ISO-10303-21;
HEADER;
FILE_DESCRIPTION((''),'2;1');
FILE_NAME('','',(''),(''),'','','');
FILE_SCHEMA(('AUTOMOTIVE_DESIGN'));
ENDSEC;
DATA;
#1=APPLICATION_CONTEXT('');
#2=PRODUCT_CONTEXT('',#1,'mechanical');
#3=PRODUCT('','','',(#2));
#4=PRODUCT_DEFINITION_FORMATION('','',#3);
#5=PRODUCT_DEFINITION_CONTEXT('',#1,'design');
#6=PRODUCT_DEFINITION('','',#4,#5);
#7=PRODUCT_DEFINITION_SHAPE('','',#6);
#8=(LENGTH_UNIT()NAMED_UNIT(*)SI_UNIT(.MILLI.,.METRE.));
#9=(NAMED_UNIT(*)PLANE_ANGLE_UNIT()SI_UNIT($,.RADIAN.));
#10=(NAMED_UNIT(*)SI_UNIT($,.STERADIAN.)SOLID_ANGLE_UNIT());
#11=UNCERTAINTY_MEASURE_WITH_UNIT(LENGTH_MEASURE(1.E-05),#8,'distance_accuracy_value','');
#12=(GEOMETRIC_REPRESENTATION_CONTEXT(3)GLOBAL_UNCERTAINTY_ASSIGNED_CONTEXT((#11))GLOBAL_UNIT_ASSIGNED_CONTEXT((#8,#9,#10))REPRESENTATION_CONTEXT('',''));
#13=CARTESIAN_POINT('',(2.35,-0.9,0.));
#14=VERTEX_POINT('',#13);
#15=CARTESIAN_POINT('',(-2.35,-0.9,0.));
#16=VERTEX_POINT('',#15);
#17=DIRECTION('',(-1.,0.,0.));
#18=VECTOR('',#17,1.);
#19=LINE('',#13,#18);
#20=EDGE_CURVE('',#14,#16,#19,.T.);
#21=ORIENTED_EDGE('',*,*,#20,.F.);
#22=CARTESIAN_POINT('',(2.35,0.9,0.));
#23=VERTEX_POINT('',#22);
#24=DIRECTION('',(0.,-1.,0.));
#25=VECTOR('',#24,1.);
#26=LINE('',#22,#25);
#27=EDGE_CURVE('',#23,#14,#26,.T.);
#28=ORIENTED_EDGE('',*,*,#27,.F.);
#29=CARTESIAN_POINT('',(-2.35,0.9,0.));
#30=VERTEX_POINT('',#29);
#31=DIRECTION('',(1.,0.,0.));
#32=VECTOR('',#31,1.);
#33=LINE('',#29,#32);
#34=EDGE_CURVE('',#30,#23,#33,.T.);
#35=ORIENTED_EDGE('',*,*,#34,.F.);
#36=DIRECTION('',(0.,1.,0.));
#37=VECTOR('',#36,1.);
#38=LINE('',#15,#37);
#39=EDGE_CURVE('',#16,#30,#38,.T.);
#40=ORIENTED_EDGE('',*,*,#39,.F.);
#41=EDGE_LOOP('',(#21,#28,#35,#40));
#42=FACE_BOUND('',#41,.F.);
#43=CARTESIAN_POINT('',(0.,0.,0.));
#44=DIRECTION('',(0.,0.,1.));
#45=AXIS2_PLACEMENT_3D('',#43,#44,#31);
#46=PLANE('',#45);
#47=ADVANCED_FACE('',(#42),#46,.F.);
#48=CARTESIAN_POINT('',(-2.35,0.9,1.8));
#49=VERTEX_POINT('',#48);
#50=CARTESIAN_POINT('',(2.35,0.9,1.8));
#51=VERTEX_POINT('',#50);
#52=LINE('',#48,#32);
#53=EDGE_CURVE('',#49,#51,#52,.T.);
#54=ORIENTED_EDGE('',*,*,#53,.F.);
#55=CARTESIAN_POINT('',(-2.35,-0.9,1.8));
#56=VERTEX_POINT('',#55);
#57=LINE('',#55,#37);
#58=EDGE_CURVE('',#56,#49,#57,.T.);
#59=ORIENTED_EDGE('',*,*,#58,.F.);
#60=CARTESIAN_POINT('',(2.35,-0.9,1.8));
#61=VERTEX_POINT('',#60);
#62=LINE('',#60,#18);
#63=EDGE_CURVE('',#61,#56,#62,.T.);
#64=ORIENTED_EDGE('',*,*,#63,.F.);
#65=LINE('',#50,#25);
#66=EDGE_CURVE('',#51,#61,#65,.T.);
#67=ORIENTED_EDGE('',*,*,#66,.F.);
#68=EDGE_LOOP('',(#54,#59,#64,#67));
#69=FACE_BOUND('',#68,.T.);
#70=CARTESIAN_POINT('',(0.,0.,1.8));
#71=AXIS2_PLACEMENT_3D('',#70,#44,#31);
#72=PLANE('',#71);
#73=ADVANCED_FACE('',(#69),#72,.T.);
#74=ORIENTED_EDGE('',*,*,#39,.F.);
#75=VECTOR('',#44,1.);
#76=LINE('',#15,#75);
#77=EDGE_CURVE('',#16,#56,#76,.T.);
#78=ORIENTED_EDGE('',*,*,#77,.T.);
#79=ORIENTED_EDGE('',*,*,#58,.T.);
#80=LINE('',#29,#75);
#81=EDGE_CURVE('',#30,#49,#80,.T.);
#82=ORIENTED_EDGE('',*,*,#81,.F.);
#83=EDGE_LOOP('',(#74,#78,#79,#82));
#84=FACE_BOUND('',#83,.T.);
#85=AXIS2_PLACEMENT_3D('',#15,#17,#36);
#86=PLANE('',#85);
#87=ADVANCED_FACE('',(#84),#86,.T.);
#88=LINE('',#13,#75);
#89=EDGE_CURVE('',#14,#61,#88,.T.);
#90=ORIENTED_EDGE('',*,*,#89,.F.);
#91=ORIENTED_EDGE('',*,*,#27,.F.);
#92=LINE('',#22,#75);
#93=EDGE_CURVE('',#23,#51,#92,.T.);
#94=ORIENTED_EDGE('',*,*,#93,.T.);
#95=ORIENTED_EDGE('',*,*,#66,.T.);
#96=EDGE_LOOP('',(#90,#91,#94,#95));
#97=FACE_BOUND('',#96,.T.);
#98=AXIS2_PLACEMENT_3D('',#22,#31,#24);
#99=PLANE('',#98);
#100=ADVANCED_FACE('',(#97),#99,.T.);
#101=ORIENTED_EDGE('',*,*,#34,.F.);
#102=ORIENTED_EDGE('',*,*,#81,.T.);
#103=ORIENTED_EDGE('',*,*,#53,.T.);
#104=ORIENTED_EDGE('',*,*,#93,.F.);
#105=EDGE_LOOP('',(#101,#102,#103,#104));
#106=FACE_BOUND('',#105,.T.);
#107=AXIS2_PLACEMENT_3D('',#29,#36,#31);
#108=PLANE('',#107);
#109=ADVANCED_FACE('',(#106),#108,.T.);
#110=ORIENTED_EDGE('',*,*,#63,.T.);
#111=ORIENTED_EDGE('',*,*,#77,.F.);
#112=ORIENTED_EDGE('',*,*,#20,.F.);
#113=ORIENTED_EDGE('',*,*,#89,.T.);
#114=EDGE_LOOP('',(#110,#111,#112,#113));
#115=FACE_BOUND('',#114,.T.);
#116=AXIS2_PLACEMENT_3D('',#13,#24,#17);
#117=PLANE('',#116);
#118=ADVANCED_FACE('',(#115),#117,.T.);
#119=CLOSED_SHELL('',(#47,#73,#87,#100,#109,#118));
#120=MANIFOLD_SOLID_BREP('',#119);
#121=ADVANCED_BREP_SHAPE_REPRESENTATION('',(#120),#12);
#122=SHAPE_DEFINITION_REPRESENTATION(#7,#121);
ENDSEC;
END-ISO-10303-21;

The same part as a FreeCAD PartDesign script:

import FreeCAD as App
import Part
import Sketcher
from FreeCAD import Vector


def add_polygon(sketch, points):
    """Adds a closed chain of lines whose ends are joined by coincident constraints."""
    first, n = sketch.GeometryCount, len(points)
    for a, b in zip(points, points[1:] + points[:1]):
        sketch.addGeometry(Part.LineSegment(App.Vector(*a, 0), App.Vector(*b, 0)), False)
    for i in range(n):
        sketch.addConstraint(Sketcher.Constraint("Coincident", first + i, 2, first + (i + 1) % n, 1))

doc = App.newDocument("Part")
body = doc.addObject("PartDesign::Body", "Body")

# Sketch on XY plane
sketch1 = body.newObject("Sketcher::SketchObject", "Sketch")
sketch1.AttachmentSupport = (doc.getObject("XY_Plane"), [""])
sketch1.MapMode = "FlatFace"
add_polygon(sketch1, [(2.4, 0.9), (-2.4, 0.9), (-2.4, -0.9), (2.4, -0.9)])  # lines 0-3
sketch1.addConstraint(Sketcher.Constraint("Horizontal", 0))
sketch1.addConstraint(Sketcher.Constraint("Vertical", 1))
sketch1.addConstraint(Sketcher.Constraint("Horizontal", 2))
sketch1.addConstraint(Sketcher.Constraint("Vertical", 3))
sketch1.addConstraint(Sketcher.Constraint("Symmetric", 0, 2, 2, 2, -1, 1))
sketch1.addConstraint(Sketcher.Constraint("DistanceX", 0, 2, 0, 1, 4.7))
sketch1.addConstraint(Sketcher.Constraint("DistanceY", 1, 2, 1, 1, 1.8))
pad1 = body.newObject("PartDesign::Pad", "Pad")
pad1.Profile = sketch1
pad1.Length = 1.8

doc.recompute()
